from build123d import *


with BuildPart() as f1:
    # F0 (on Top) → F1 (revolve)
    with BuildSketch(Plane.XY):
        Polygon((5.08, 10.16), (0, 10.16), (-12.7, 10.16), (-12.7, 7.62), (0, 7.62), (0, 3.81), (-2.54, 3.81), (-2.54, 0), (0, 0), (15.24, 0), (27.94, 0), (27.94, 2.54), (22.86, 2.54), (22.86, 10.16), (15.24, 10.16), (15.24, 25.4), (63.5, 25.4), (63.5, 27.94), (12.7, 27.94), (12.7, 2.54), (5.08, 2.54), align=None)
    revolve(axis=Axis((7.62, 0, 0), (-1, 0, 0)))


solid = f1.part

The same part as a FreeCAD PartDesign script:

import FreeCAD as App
import Part
import Sketcher

V = App.Vector
Q = App.Units.Quantity


def add_polygon(sketch, points):
    """Adds a closed chain of lines whose ends are joined by coincident constraints."""
    first, n = sketch.GeometryCount, len(points)
    for a, b in zip(points, points[1:] + points[:1]):
        sketch.addGeometry(Part.LineSegment(App.Vector(*a, 0), App.Vector(*b, 0)), False)
    for i in range(n):
        sketch.addConstraint(Sketcher.Constraint("Coincident", first + i, 2, first + (i + 1) % n, 1))

doc = App.newDocument("Part")
body = doc.addObject("PartDesign::Body", "Body")

# Sketch on XY plane
sketch1 = doc.addObject("Sketcher::SketchObject", "Sketch")
body.addObject(sketch1)
sketch1.AttachmentSupport = (doc.XY_Plane, [""])
sketch1.MapMode = "FlatFace"
add_polygon(sketch1, [(5.1, 10.2), (-12.7, 10.2), (-12.7, 7.6), (0, 7.6), (0, 3.8), (-2.5, 3.8), (-2.5, 0), (27.9, 0), (27.9, 2.5), (22.9, 2.5), (22.9, 10.2), (15.2, 10.2), (15.2, 25.4), (63.5, 25.4), (63.5, 27.9), (12.7, 27.9), (12.7, 2.5), (5.1, 2.5)])  # lines 0-17
sketch1.addConstraint([
    Sketcher.Constraint("Horizontal", 0),
    Sketcher.Constraint("Vertical", 1),
    Sketcher.Constraint("Horizontal", 2),
    Sketcher.Constraint("Vertical", 3),
    Sketcher.Constraint("Horizontal", 4),
    Sketcher.Constraint("Vertical", 5),
    Sketcher.Constraint("Horizontal", 6),
    Sketcher.Constraint("Vertical", 7),
    Sketcher.Constraint("Horizontal", 8),
    Sketcher.Constraint("Vertical", 9),
    Sketcher.Constraint("Horizontal", 10),
    Sketcher.Constraint("Vertical", 11),
    Sketcher.Constraint("Horizontal", 12),
    Sketcher.Constraint("Vertical", 13),
    Sketcher.Constraint("Horizontal", 14),
    Sketcher.Constraint("Vertical", 15),
    Sketcher.Constraint("Horizontal", 16),
    Sketcher.Constraint("Vertical", 17),
    Sketcher.Constraint("PointOnObject", 2, 2, -2),
    Sketcher.Constraint("PointOnObject", 5, 2, -1),
    Sketcher.Constraint("Horizontal", 0, 2, 9, 2),
    Sketcher.Constraint("Horizontal", 8, 2, 15, 2),
    Sketcher.Constraint("Equal", 10, 16),
    Sketcher.Constraint("Equal", 4, 1),
    Sketcher.Constraint("Equal", 3, 5),
    Sketcher.Constraint("Equal", 1, 7),
    Sketcher.Constraint("Equal", 16, 9),
    Sketcher.Constraint("Equal", 7, 13),
    Sketcher.Constraint("DistanceX", 14, 2, 14, 1, Q("2 in")),
    Sketcher.Constraint("DistanceY", 15, 2, 15, 1, Q("1 in")),
    Sketcher.Constraint("DistanceX", 0, 2, 0, 1, Q("0.7 in")),
    Sketcher.Constraint("DistanceX", 2, 1, 2, 2, Q("0.5 in")),
    Sketcher.Constraint("DistanceX", 4, 2, 4, 1, Q("0.1 in")),
    Sketcher.Constraint("DistanceX", 6, 1, 6, 2, Q("1.2 in")),
    Sketcher.Constraint("DistanceX", 8, 2, 8, 1, Q("0.2 in")),
    Sketcher.Constraint("DistanceX", 10, 2, 10, 1, Q("0.3 in")),
])
revolution = doc.addObject("PartDesign::Revolution", "Revolution")
body.addObject(revolution)
revolution.Profile = sketch1
revolution.ReferenceAxis = (sketch1, ["H_Axis"])
revolution.Angle = 360

doc.recompute()
